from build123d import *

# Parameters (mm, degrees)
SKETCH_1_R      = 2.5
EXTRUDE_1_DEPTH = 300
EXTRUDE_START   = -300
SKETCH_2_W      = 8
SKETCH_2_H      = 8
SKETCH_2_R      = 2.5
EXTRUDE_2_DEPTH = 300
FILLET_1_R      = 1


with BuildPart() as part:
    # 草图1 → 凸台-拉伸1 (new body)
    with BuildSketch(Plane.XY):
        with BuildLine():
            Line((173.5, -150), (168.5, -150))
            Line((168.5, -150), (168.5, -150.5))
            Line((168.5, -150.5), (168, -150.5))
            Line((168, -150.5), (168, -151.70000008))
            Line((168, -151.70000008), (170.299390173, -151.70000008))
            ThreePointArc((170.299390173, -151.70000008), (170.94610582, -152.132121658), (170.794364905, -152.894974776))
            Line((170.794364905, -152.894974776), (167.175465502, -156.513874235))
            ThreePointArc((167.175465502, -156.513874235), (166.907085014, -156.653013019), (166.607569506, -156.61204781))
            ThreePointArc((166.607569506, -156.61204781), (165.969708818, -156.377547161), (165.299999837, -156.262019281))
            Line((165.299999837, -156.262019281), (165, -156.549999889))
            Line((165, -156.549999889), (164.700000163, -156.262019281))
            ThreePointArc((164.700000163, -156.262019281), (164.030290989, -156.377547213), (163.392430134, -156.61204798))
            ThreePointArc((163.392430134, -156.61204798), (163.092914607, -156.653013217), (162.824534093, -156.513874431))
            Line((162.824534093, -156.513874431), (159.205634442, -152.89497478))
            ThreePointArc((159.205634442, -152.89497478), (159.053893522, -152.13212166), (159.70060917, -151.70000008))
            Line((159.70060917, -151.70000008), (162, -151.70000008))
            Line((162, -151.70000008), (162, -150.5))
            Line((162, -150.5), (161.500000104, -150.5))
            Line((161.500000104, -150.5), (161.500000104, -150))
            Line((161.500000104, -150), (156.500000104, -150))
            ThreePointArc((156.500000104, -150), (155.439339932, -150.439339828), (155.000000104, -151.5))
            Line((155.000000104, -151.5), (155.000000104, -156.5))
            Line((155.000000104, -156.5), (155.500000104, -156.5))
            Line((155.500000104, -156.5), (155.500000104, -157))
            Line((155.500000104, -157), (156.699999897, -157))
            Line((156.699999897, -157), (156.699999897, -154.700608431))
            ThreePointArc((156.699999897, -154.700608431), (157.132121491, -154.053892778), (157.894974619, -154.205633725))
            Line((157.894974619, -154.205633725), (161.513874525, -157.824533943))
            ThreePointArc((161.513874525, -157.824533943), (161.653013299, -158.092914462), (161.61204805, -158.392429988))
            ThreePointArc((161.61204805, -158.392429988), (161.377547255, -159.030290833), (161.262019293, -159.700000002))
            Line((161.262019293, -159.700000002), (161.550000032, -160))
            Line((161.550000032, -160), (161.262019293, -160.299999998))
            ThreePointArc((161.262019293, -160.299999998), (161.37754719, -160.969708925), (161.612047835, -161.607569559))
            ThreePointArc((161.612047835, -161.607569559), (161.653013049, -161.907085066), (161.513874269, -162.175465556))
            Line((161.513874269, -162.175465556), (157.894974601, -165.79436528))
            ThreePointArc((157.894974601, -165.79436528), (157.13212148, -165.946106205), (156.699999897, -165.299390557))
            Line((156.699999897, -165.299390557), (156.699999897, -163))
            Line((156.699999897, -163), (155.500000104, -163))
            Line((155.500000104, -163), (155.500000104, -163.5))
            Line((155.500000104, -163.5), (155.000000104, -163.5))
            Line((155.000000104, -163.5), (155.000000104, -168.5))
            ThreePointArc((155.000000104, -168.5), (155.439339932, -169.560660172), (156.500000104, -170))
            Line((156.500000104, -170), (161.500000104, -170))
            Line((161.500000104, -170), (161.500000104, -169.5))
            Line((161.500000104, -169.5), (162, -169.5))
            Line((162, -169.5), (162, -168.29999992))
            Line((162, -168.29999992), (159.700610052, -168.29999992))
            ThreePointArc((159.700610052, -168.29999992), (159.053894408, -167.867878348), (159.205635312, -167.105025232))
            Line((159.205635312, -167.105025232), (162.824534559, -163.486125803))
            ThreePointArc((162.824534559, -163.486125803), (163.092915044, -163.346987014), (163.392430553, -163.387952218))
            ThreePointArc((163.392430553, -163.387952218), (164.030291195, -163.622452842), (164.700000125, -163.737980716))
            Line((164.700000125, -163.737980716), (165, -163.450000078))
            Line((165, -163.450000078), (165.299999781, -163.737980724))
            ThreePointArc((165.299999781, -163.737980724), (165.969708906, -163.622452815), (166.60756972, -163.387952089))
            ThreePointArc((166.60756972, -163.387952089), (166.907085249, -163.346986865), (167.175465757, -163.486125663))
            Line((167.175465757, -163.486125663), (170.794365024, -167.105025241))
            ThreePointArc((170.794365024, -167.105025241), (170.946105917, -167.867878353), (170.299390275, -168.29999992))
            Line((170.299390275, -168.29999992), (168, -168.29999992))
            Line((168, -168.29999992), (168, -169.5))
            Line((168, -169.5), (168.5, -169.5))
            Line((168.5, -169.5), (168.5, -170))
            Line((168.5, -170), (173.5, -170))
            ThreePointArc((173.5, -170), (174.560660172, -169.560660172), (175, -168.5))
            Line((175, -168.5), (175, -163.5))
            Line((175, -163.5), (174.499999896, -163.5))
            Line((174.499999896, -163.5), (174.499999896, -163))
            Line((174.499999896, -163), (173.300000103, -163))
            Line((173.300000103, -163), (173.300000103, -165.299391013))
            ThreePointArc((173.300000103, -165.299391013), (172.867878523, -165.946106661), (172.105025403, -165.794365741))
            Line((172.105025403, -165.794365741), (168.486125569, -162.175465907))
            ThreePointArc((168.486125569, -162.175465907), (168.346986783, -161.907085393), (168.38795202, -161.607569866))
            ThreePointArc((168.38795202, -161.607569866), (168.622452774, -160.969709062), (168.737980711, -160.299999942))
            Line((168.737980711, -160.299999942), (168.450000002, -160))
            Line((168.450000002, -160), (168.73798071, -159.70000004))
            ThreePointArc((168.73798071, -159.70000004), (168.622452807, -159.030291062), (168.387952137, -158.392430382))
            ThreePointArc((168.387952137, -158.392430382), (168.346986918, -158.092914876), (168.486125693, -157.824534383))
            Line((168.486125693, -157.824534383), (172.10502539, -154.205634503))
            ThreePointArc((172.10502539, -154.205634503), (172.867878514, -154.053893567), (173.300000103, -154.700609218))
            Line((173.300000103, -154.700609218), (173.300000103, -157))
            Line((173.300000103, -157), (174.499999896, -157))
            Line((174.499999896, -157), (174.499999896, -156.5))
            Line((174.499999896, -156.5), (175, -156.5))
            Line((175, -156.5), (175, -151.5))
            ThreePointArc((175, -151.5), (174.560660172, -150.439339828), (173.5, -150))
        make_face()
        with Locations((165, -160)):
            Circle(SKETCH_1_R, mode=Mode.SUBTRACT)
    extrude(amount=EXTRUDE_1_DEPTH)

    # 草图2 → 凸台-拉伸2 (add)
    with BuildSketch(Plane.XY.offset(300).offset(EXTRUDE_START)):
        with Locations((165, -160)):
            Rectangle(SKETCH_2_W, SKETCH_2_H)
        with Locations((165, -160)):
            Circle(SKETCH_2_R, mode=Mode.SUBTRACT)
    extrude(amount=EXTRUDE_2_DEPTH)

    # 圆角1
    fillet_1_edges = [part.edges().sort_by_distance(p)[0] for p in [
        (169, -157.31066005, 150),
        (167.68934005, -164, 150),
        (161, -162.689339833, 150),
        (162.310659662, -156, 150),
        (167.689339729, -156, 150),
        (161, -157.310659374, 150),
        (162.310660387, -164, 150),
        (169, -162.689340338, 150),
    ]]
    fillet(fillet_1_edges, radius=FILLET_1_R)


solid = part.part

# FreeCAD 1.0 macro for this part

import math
import FreeCAD as App
import Part
import Sketcher
from FreeCAD import Vector


def edges_at(feature, points):
    """Names of the edges that pass closest to the given points."""
    edges = feature.Shape.Edges
    near = lambda p: min(range(len(edges)), key=lambda i: edges[i].distToShape(Part.Vertex(*p))[0])
    return sorted({f"Edge{near(p) + 1}" for p in points})

doc = App.newDocument("Part")
body = doc.addObject("PartDesign::Body", "Body")

# Sketch on XY plane
sketch1 = doc.addObject("Sketcher::SketchObject", "Sketch")
body.addObject(sketch1)
sketch1.AttachmentSupport = (doc.XY_Plane, [""])
sketch1.MapMode = "FlatFace"
sketch1.addGeometry([
    Part.LineSegment(Vector(173.5, -150, 0), Vector(168.5, -150, 0)),  # 0
    Part.LineSegment(Vector(168.5, -150, 0), Vector(168.5, -150.5, 0)),  # 1
    Part.LineSegment(Vector(168.5, -150.5, 0), Vector(168, -150.5, 0)),  # 2
    Part.LineSegment(Vector(168, -150.5, 0), Vector(168, -151.7, 0)),  # 3
    Part.LineSegment(Vector(168, -151.7, 0), Vector(170.29939, -151.7, 0)),  # 4
    Part.ArcOfCircle(Part.Circle(Vector(170.29939, -152.4, 0), Vector(0, 0, 1), 0.7), math.radians(-45), math.radians(90)),  # 5
    Part.LineSegment(Vector(170.794365, -152.894975, 0), Vector(167.175466, -156.513874, 0)),  # 6
    Part.ArcOfCircle(Part.Circle(Vector(166.821912, -156.160321, 0), Vector(0, 0, 1), 0.5), math.radians(-115.384149), math.radians(-45)),  # 7
    Part.ArcOfCircle(Part.Circle(Vector(165, -160, 0), Vector(0, 0, 1), 3.75), math.radians(64.615851), math.radians(85.411437)),  # 8
    Part.LineSegment(Vector(165.3, -156.262019, 0), Vector(165, -156.55, 0)),  # 9
    Part.LineSegment(Vector(165, -156.55, 0), Vector(164.7, -156.262019, 0)),  # 10
    Part.ArcOfCircle(Part.Circle(Vector(165, -160, 0), Vector(0, 0, 1), 3.75), math.radians(94.588563), math.radians(115.384155)),  # 11
    Part.ArcOfCircle(Part.Circle(Vector(163.178087, -156.160321, 0), Vector(0, 0, 1), 0.5), math.radians(-135), math.radians(-64.615845)),  # 12
    Part.LineSegment(Vector(162.824534, -156.513874, 0), Vector(159.205634, -152.894975, 0)),  # 13
    Part.ArcOfCircle(Part.Circle(Vector(159.700609, -152.4, 0), Vector(0, 0, 1), 0.7), math.radians(90), math.radians(225)),  # 14
    Part.LineSegment(Vector(159.700609, -151.7, 0), Vector(162, -151.7, 0)),  # 15
    Part.LineSegment(Vector(162, -151.7, 0), Vector(162, -150.5, 0)),  # 16
    Part.LineSegment(Vector(162, -150.5, 0), Vector(161.5, -150.5, 0)),  # 17
    Part.LineSegment(Vector(161.5, -150.5, 0), Vector(161.5, -150, 0)),  # 18
    Part.LineSegment(Vector(161.5, -150, 0), Vector(156.5, -150, 0)),  # 19
    Part.ArcOfCircle(Part.Circle(Vector(156.5, -151.5, 0), Vector(0, 0, 1), 1.5), math.radians(90), math.radians(180)),  # 20
    Part.LineSegment(Vector(155, -151.5, 0), Vector(155, -156.5, 0)),  # 21
    Part.LineSegment(Vector(155, -156.5, 0), Vector(155.5, -156.5, 0)),  # 22
    Part.LineSegment(Vector(155.5, -156.5, 0), Vector(155.5, -157, 0)),  # 23
    Part.LineSegment(Vector(155.5, -157, 0), Vector(156.7, -157, 0)),  # 24
    Part.LineSegment(Vector(156.7, -157, 0), Vector(156.7, -154.700608, 0)),  # 25
    Part.ArcOfCircle(Part.Circle(Vector(157.4, -154.700608, 0), Vector(0, 0, 1), 0.7), math.radians(44.999998), math.radians(180)),  # 26
    Part.LineSegment(Vector(157.894975, -154.205634, 0), Vector(161.513875, -157.824534, 0)),  # 27
    Part.ArcOfCircle(Part.Circle(Vector(161.160321, -158.178087, 0), Vector(0, 0, 1), 0.5), math.radians(-25.384157), math.radians(44.999997)),  # 28
    Part.ArcOfCircle(Part.Circle(Vector(165, -160, 0), Vector(0, 0, 1), 3.75), math.radians(154.615843), math.radians(175.411434)),  # 29
    Part.LineSegment(Vector(161.262019, -159.7, 0), Vector(161.55, -160, 0)),  # 30
    Part.LineSegment(Vector(161.55, -160, 0), Vector(161.262019, -160.3, 0)),  # 31
    Part.ArcOfCircle(Part.Circle(Vector(165, -160, 0), Vector(0, 0, 1), 3.75), math.radians(-175.411434), math.radians(-154.61585)),  # 32
    Part.ArcOfCircle(Part.Circle(Vector(161.160321, -161.821912, 0), Vector(0, 0, 1), 0.5), math.radians(-45), math.radians(25.38415)),  # 33
    Part.LineSegment(Vector(161.513874, -162.175466, 0), Vector(157.894975, -165.794365, 0)),  # 34
    Part.ArcOfCircle(Part.Circle(Vector(157.4, -165.299391, 0), Vector(0, 0, 1), 0.7), math.radians(-180), math.radians(-45)),  # 35
    Part.LineSegment(Vector(156.7, -165.299391, 0), Vector(156.7, -163, 0)),  # 36
    Part.LineSegment(Vector(156.7, -163, 0), Vector(155.5, -163, 0)),  # 37
    Part.LineSegment(Vector(155.5, -163, 0), Vector(155.5, -163.5, 0)),  # 38
    Part.LineSegment(Vector(155.5, -163.5, 0), Vector(155, -163.5, 0)),  # 39
    Part.LineSegment(Vector(155, -163.5, 0), Vector(155, -168.5, 0)),  # 40
    Part.ArcOfCircle(Part.Circle(Vector(156.5, -168.5, 0), Vector(0, 0, 1), 1.5), math.radians(180), math.radians(270)),  # 41
    Part.LineSegment(Vector(156.5, -170, 0), Vector(161.5, -170, 0)),  # 42
    Part.LineSegment(Vector(161.5, -170, 0), Vector(161.5, -169.5, 0)),  # 43
    Part.LineSegment(Vector(161.5, -169.5, 0), Vector(162, -169.5, 0)),  # 44
    Part.LineSegment(Vector(162, -169.5, 0), Vector(162, -168.3, 0)),  # 45
    Part.LineSegment(Vector(162, -168.3, 0), Vector(159.70061, -168.3, 0)),  # 46
    Part.ArcOfCircle(Part.Circle(Vector(159.70061, -167.6, 0), Vector(0, 0, 1), 0.7), math.radians(135.000001), math.radians(270)),  # 47
    Part.LineSegment(Vector(159.205635, -167.105025, 0), Vector(162.824535, -163.486126, 0)),  # 48
    Part.ArcOfCircle(Part.Circle(Vector(163.178088, -163.839679, 0), Vector(0, 0, 1), 0.5), math.radians(64.615852), math.radians(135.000002)),  # 49
    Part.ArcOfCircle(Part.Circle(Vector(165, -160, 0), Vector(0, 0, 1), 3.75), math.radians(-115.384148), math.radians(-94.588564)),  # 50
    Part.LineSegment(Vector(164.7, -163.737981, 0), Vector(165, -163.45, 0)),  # 51
    Part.LineSegment(Vector(165, -163.45, 0), Vector(165.3, -163.737981, 0)),  # 52
    Part.ArcOfCircle(Part.Circle(Vector(165, -160, 0), Vector(0, 0, 1), 3.75), math.radians(-85.411438), math.radians(-64.615848)),  # 53
    Part.ArcOfCircle(Part.Circle(Vector(166.821912, -163.839679, 0), Vector(0, 0, 1), 0.5), math.radians(44.999997), math.radians(115.384152)),  # 54
    Part.LineSegment(Vector(167.175466, -163.486126, 0), Vector(170.794365, -167.105025, 0)),  # 55
    Part.ArcOfCircle(Part.Circle(Vector(170.29939, -167.6, 0), Vector(0, 0, 1), 0.7), math.radians(-90), math.radians(44.999998)),  # 56
    Part.LineSegment(Vector(170.29939, -168.3, 0), Vector(168, -168.3, 0)),  # 57
    Part.LineSegment(Vector(168, -168.3, 0), Vector(168, -169.5, 0)),  # 58
    Part.LineSegment(Vector(168, -169.5, 0), Vector(168.5, -169.5, 0)),  # 59
    Part.LineSegment(Vector(168.5, -169.5, 0), Vector(168.5, -170, 0)),  # 60
    Part.LineSegment(Vector(168.5, -170, 0), Vector(173.5, -170, 0)),  # 61
    Part.ArcOfCircle(Part.Circle(Vector(173.5, -168.5, 0), Vector(0, 0, 1), 1.5), math.radians(-90), math.radians(0)),  # 62
    Part.LineSegment(Vector(175, -168.5, 0), Vector(175, -163.5, 0)),  # 63
    Part.LineSegment(Vector(175, -163.5, 0), Vector(174.5, -163.5, 0)),  # 64
    Part.LineSegment(Vector(174.5, -163.5, 0), Vector(174.5, -163, 0)),  # 65
    Part.LineSegment(Vector(174.5, -163, 0), Vector(173.3, -163, 0)),  # 66
    Part.LineSegment(Vector(173.3, -163, 0), Vector(173.3, -165.299391, 0)),  # 67
    Part.ArcOfCircle(Part.Circle(Vector(172.6, -165.299391, 0), Vector(0, 0, 1), 0.7), math.radians(-135), math.radians(0)),  # 68
    Part.LineSegment(Vector(172.105025, -165.794366, 0), Vector(168.486126, -162.175466, 0)),  # 69
    Part.ArcOfCircle(Part.Circle(Vector(168.839679, -161.821913, 0), Vector(0, 0, 1), 0.5), math.radians(154.615845), math.radians(225)),  # 70
    Part.ArcOfCircle(Part.Circle(Vector(165, -160, 0), Vector(0, 0, 1), 3.75), math.radians(-25.384155), math.radians(-4.588565)),  # 71
    Part.LineSegment(Vector(168.737981, -160.3, 0), Vector(168.45, -160, 0)),  # 72
    Part.LineSegment(Vector(168.45, -160, 0), Vector(168.737981, -159.7, 0)),  # 73
    Part.ArcOfCircle(Part.Circle(Vector(165, -160, 0), Vector(0, 0, 1), 3.75), math.radians(4.588565), math.radians(25.384151)),  # 74
    Part.ArcOfCircle(Part.Circle(Vector(168.839679, -158.178088, 0), Vector(0, 0, 1), 0.5), math.radians(135.000001), math.radians(205.384151)),  # 75
    Part.LineSegment(Vector(168.486126, -157.824534, 0), Vector(172.105025, -154.205635, 0)),  # 76
    Part.ArcOfCircle(Part.Circle(Vector(172.6, -154.700609, 0), Vector(0, 0, 1), 0.7), math.radians(0), math.radians(135.000001)),  # 77
    Part.LineSegment(Vector(173.3, -154.700609, 0), Vector(173.3, -157, 0)),  # 78
    Part.LineSegment(Vector(173.3, -157, 0), Vector(174.5, -157, 0)),  # 79
    Part.LineSegment(Vector(174.5, -157, 0), Vector(174.5, -156.5, 0)),  # 80
    Part.LineSegment(Vector(174.5, -156.5, 0), Vector(175, -156.5, 0)),  # 81
    Part.LineSegment(Vector(175, -156.5, 0), Vector(175, -151.5, 0)),  # 82
    Part.ArcOfCircle(Part.Circle(Vector(173.5, -151.5, 0), Vector(0, 0, 1), 1.5), math.radians(0), math.radians(90)),  # 83
    Part.Circle(Vector(165, -160, 0), Vector(0, 0, 1), 2.5),  # 84
], False)
sketch1.addConstraint([
    Sketcher.Constraint("Coincident", 0, 2, 1, 1),
    Sketcher.Constraint("Coincident", 1, 2, 2, 1),
    Sketcher.Constraint("Coincident", 2, 2, 3, 1),
    Sketcher.Constraint("Coincident", 3, 2, 4, 1),
    Sketcher.Constraint("Tangent", 4, 2, 5, 2),
    Sketcher.Constraint("Tangent", 5, 1, 6, 1),
    Sketcher.Constraint("Tangent", 6, 2, 7, 2),
    Sketcher.Constraint("Tangent", 7, 1, 8, 1),
    Sketcher.Constraint("Coincident", 8, 2, 9, 1),
    Sketcher.Constraint("Coincident", 9, 2, 10, 1),
    Sketcher.Constraint("Coincident", 10, 2, 11, 1),
    Sketcher.Constraint("Tangent", 11, 2, 12, 2),
    Sketcher.Constraint("Tangent", 12, 1, 13, 1),
    Sketcher.Constraint("Tangent", 13, 2, 14, 2),
    Sketcher.Constraint("Tangent", 14, 1, 15, 1),
    Sketcher.Constraint("Coincident", 15, 2, 16, 1),
    Sketcher.Constraint("Coincident", 16, 2, 17, 1),
    Sketcher.Constraint("Coincident", 17, 2, 18, 1),
    Sketcher.Constraint("Coincident", 18, 2, 19, 1),
    Sketcher.Constraint("Tangent", 19, 2, 20, 1),
    Sketcher.Constraint("Tangent", 20, 2, 21, 1),
    Sketcher.Constraint("Coincident", 21, 2, 22, 1),
    Sketcher.Constraint("Coincident", 22, 2, 23, 1),
    Sketcher.Constraint("Coincident", 23, 2, 24, 1),
    Sketcher.Constraint("Coincident", 24, 2, 25, 1),
    Sketcher.Constraint("Tangent", 25, 2, 26, 2),
    Sketcher.Constraint("Tangent", 26, 1, 27, 1),
    Sketcher.Constraint("Tangent", 27, 2, 28, 2),
    Sketcher.Constraint("Tangent", 28, 1, 29, 1),
    Sketcher.Constraint("Coincident", 29, 2, 30, 1),
    Sketcher.Constraint("Coincident", 30, 2, 31, 1),
    Sketcher.Constraint("Coincident", 31, 2, 32, 1),
    Sketcher.Constraint("Tangent", 32, 2, 33, 2),
    Sketcher.Constraint("Tangent", 33, 1, 34, 1),
    Sketcher.Constraint("Tangent", 34, 2, 35, 2),
    Sketcher.Constraint("Tangent", 35, 1, 36, 1),
    Sketcher.Constraint("Coincident", 36, 2, 37, 1),
    Sketcher.Constraint("Coincident", 37, 2, 38, 1),
    Sketcher.Constraint("Coincident", 38, 2, 39, 1),
    Sketcher.Constraint("Coincident", 39, 2, 40, 1),
    Sketcher.Constraint("Tangent", 40, 2, 41, 1),
    Sketcher.Constraint("Tangent", 41, 2, 42, 1),
    Sketcher.Constraint("Coincident", 42, 2, 43, 1),
    Sketcher.Constraint("Coincident", 43, 2, 44, 1),
    Sketcher.Constraint("Coincident", 44, 2, 45, 1),
    Sketcher.Constraint("Coincident", 45, 2, 46, 1),
    Sketcher.Constraint("Tangent", 46, 2, 47, 2),
    Sketcher.Constraint("Tangent", 47, 1, 48, 1),
    Sketcher.Constraint("Tangent", 48, 2, 49, 2),
    Sketcher.Constraint("Tangent", 49, 1, 50, 1),
    Sketcher.Constraint("Coincident", 50, 2, 51, 1),
    Sketcher.Constraint("Coincident", 51, 2, 52, 1),
    Sketcher.Constraint("Coincident", 52, 2, 53, 1),
    Sketcher.Constraint("Tangent", 53, 2, 54, 2),
    Sketcher.Constraint("Tangent", 54, 1, 55, 1),
    Sketcher.Constraint("Tangent", 55, 2, 56, 2),
    Sketcher.Constraint("Tangent", 56, 1, 57, 1),
    Sketcher.Constraint("Coincident", 57, 2, 58, 1),
    Sketcher.Constraint("Coincident", 58, 2, 59, 1),
    Sketcher.Constraint("Coincident", 59, 2, 60, 1),
    Sketcher.Constraint("Coincident", 60, 2, 61, 1),
    Sketcher.Constraint("Tangent", 61, 2, 62, 1),
    Sketcher.Constraint("Tangent", 62, 2, 63, 1),
    Sketcher.Constraint("Coincident", 63, 2, 64, 1),
    Sketcher.Constraint("Coincident", 64, 2, 65, 1),
    Sketcher.Constraint("Coincident", 65, 2, 66, 1),
    Sketcher.Constraint("Coincident", 66, 2, 67, 1),
    Sketcher.Constraint("Tangent", 67, 2, 68, 2),
    Sketcher.Constraint("Tangent", 68, 1, 69, 1),
    Sketcher.Constraint("Tangent", 69, 2, 70, 2),
    Sketcher.Constraint("Tangent", 70, 1, 71, 1),
    Sketcher.Constraint("Coincident", 71, 2, 72, 1),
    Sketcher.Constraint("Coincident", 72, 2, 73, 1),
    Sketcher.Constraint("Coincident", 73, 2, 74, 1),
    Sketcher.Constraint("Tangent", 74, 2, 75, 2),
    Sketcher.Constraint("Tangent", 75, 1, 76, 1),
    Sketcher.Constraint("Tangent", 76, 2, 77, 2),
    Sketcher.Constraint("Tangent", 77, 1, 78, 1),
    Sketcher.Constraint("Coincident", 78, 2, 79, 1),
    Sketcher.Constraint("Coincident", 79, 2, 80, 1),
    Sketcher.Constraint("Coincident", 80, 2, 81, 1),
    Sketcher.Constraint("Coincident", 81, 2, 82, 1),
    Sketcher.Constraint("Tangent", 82, 2, 83, 1),
    Sketcher.Constraint("Tangent", 83, 2, 0, 1),
    Sketcher.Constraint("Horizontal", 0),
    Sketcher.Constraint("Vertical", 1),
    Sketcher.Constraint("Horizontal", 2),
    Sketcher.Constraint("Vertical", 3),
    Sketcher.Constraint("Horizontal", 4),
    Sketcher.Constraint("Horizontal", 15),
    Sketcher.Constraint("Vertical", 16),
    Sketcher.Constraint("Horizontal", 17),
    Sketcher.Constraint("Vertical", 18),
    Sketcher.Constraint("Horizontal", 19),
    Sketcher.Constraint("Vertical", 21),
    Sketcher.Constraint("Horizontal", 22),
    Sketcher.Constraint("Vertical", 23),
    Sketcher.Constraint("Horizontal", 24),
    Sketcher.Constraint("Vertical", 25),
    Sketcher.Constraint("Vertical", 36),
    Sketcher.Constraint("Horizontal", 37),
    Sketcher.Constraint("Vertical", 38),
    Sketcher.Constraint("Horizontal", 39),
    Sketcher.Constraint("Vertical", 40),
    Sketcher.Constraint("Horizontal", 42),
    Sketcher.Constraint("Vertical", 43),
    Sketcher.Constraint("Horizontal", 44),
    Sketcher.Constraint("Vertical", 45),
    Sketcher.Constraint("Horizontal", 46),
    Sketcher.Constraint("Horizontal", 57),
    Sketcher.Constraint("Vertical", 58),
    Sketcher.Constraint("Horizontal", 59),
    Sketcher.Constraint("Vertical", 60),
    Sketcher.Constraint("Horizontal", 61),
    Sketcher.Constraint("Vertical", 63),
    Sketcher.Constraint("Horizontal", 64),
    Sketcher.Constraint("Vertical", 65),
    Sketcher.Constraint("Horizontal", 66),
    Sketcher.Constraint("Vertical", 67),
    Sketcher.Constraint("Vertical", 78),
    Sketcher.Constraint("Horizontal", 79),
    Sketcher.Constraint("Vertical", 80),
    Sketcher.Constraint("Horizontal", 81),
    Sketcher.Constraint("Vertical", 82),
    Sketcher.Constraint("Coincident", 11, 3, 8, 3),
    Sketcher.Constraint("Coincident", 29, 3, 8, 3),
    Sketcher.Constraint("Coincident", 32, 3, 8, 3),
    Sketcher.Constraint("Coincident", 50, 3, 8, 3),
    Sketcher.Constraint("Coincident", 53, 3, 8, 3),
    Sketcher.Constraint("Coincident", 71, 3, 8, 3),
    Sketcher.Constraint("Coincident", 74, 3, 8, 3),
    Sketcher.Constraint("Coincident", 84, 3, 8, 3),
    Sketcher.Constraint("Equal", 8, 11),
    Sketcher.Constraint("Equal", 7, 12),
    Sketcher.Constraint("Equal", 5, 14),
    Sketcher.Constraint("Equal", 14, 26),
    Sketcher.Constraint("Equal", 12, 28),
    Sketcher.Constraint("Equal", 11, 29),
    Sketcher.Constraint("Equal", 29, 32),
    Sketcher.Constraint("Equal", 28, 33),
    Sketcher.Constraint("Equal", 26, 35),
    Sketcher.Constraint("Equal", 20, 41),
    Sketcher.Constraint("Equal", 35, 47),
    Sketcher.Constraint("Equal", 33, 49),
    Sketcher.Constraint("Equal", 32, 50),
    Sketcher.Constraint("Equal", 50, 53),
    Sketcher.Constraint("Equal", 49, 54),
    Sketcher.Constraint("Equal", 47, 56),
    Sketcher.Constraint("Equal", 41, 62),
    Sketcher.Constraint("Equal", 56, 68),
    Sketcher.Constraint("Equal", 54, 70),
    Sketcher.Constraint("Equal", 53, 71),
    Sketcher.Constraint("Equal", 71, 74),
    Sketcher.Constraint("Equal", 70, 75),
    Sketcher.Constraint("Equal", 68, 77),
    Sketcher.Constraint("Equal", 62, 83),
    Sketcher.Constraint("Perpendicular", 6, 13),
    Sketcher.Constraint("Parallel", 13, 27),
    Sketcher.Constraint("Perpendicular", 9, 30),
    Sketcher.Constraint("Perpendicular", 10, 31),
    Sketcher.Constraint("Perpendicular", 27, 34),
    Sketcher.Constraint("Parallel", 34, 48),
    Sketcher.Constraint("Perpendicular", 30, 51),
    Sketcher.Constraint("Perpendicular", 31, 52),
    Sketcher.Constraint("Perpendicular", 48, 55),
    Sketcher.Constraint("Parallel", 55, 69),
    Sketcher.Constraint("Perpendicular", 51, 72),
    Sketcher.Constraint("Perpendicular", 52, 73),
    Sketcher.Constraint("Perpendicular", 69, 76),
    Sketcher.Constraint("Horizontal", 7, 3, 12, 3),
    Sketcher.Constraint("Horizontal", 5, 3, 14, 3),
    Sketcher.Constraint("Horizontal", 49, 3, 54, 3),
    Sketcher.Constraint("Horizontal", 47, 3, 56, 3),
    Sketcher.Constraint("Horizontal", 41, 3, 62, 3),
    Sketcher.Constraint("Horizontal", 35, 3, 68, 3),
    Sketcher.Constraint("Horizontal", 33, 3, 70, 3),
    Sketcher.Constraint("Horizontal", 28, 3, 75, 3),
    Sketcher.Constraint("Horizontal", 26, 3, 77, 3),
    Sketcher.Constraint("Horizontal", 20, 3, 83, 3),
    Sketcher.Constraint("Horizontal", 8, 2, 10, 2),
    Sketcher.Constraint("Horizontal", 6, 2, 12, 1),
    Sketcher.Constraint("Horizontal", 2, 2, 16, 2),
    Sketcher.Constraint("Horizontal", 84, 3, 30, 2),
    Sketcher.Constraint("Horizontal", 50, 2, 52, 2),
    Sketcher.Constraint("Horizontal", 44, 2, 58, 2),
    Sketcher.Constraint("Horizontal", 39, 2, 63, 2),
    Sketcher.Constraint("Horizontal", 37, 2, 65, 2),
    Sketcher.Constraint("Horizontal", 31, 2, 71, 2),
    Sketcher.Constraint("Horizontal", 30, 2, 72, 2),
    Sketcher.Constraint("Horizontal", 29, 2, 73, 2),
    Sketcher.Constraint("Horizontal", 24, 2, 78, 2),
    Sketcher.Constraint("Horizontal", 22, 2, 80, 2),
    Sketcher.Constraint("Vertical", 28, 3, 33, 3),
    Sketcher.Constraint("Vertical", 26, 3, 35, 3),
    Sketcher.Constraint("Vertical", 20, 3, 41, 3),
    Sketcher.Constraint("Vertical", 14, 3, 47, 3),
    Sketcher.Constraint("Vertical", 12, 3, 49, 3),
    Sketcher.Constraint("Vertical", 62, 3, 83, 3),
    Sketcher.Constraint("Vertical", 23, 2, 37, 2),
    Sketcher.Constraint("Vertical", 18, 2, 42, 2),
    Sketcher.Constraint("Vertical", 16, 2, 44, 2),
    Sketcher.Constraint("Vertical", 10, 2, 50, 2),
    Sketcher.Constraint("Vertical", 3, 2, 57, 2),
    Sketcher.Constraint("Vertical", 1, 2, 59, 2),
    Sketcher.Constraint("Vertical", 65, 2, 79, 2),
    Sketcher.Constraint("Equal", 4, 15),
    Sketcher.Constraint("Equal", 2, 17),
    Sketcher.Constraint("Equal", 0, 19),
    Sketcher.Constraint("Equal", 17, 22),
    Sketcher.Constraint("Equal", 59, 64),
    Sketcher.Constraint("Equal", 81, 1),
    Sketcher.Constraint("Equal", 79, 3),
    Sketcher.Constraint("Equal", 61, 21),
    Sketcher.Constraint("Equal", 18, 23),
    Sketcher.Constraint("Equal", 57, 25),
    Sketcher.Constraint("Equal", 25, 36),
    Sketcher.Constraint("Equal", 23, 38),
    Sketcher.Constraint("Equal", 21, 40),
    Sketcher.Constraint("Equal", 38, 43),
    Sketcher.Constraint("Equal", 13, 27),
    Sketcher.Constraint("Equal", 10, 30),
    Sketcher.Constraint("Diameter", 84, 5.0),
    Sketcher.Constraint("Radius", 5, 0.7),
    Sketcher.Constraint("Radius", 7, 0.5),
    Sketcher.Constraint("Radius", 20, 1.5),
    Sketcher.Constraint("DistanceX", 0, 2, 0, 1, 5.0),
    Sketcher.Constraint("Radius", 8, 3.75),
    Sketcher.Constraint("DistanceX", 2, 2, 2, 1, 0.5),
    Sketcher.Constraint("DistanceX", 24, 1, 24, 2, 1.2),
    Sketcher.Constraint("DistanceX", -1, 1, 8, 3, 165.0),
    Sketcher.Constraint("DistanceY", 8, 3, -1, 1, 160.0),
    Sketcher.Constraint("DistanceY", 0, 2, -1, 1, 150.0),
    Sketcher.Constraint("DistanceX", -1, 1, 8, 2, 165.3),
    Sketcher.Constraint("DistanceY", 9, 2, -1, 1, 156.55),
    Sketcher.Constraint("DistanceX", 4, 1, 4, 2, 2.29939),
])
pad1 = doc.addObject("PartDesign::Pad", "Pad")
body.addObject(pad1)
pad1.Profile = sketch1
pad1.Length = 300

# Sketch on XY plane
sketch2 = doc.addObject("Sketcher::SketchObject", "Sketch001")
body.addObject(sketch2)
sketch2.AttachmentSupport = (doc.XY_Plane, [""])
sketch2.MapMode = "FlatFace"
sketch2.addGeometry([
    Part.LineSegment(Vector(161, -156, 0), Vector(161, -164, 0)),  # 0
    Part.LineSegment(Vector(161, -164, 0), Vector(169, -164, 0)),  # 1
    Part.LineSegment(Vector(169, -164, 0), Vector(169, -156, 0)),  # 2
    Part.LineSegment(Vector(169, -156, 0), Vector(161, -156, 0)),  # 3
    Part.Circle(Vector(165, -160, 0), Vector(0, 0, 1), 2.5),  # 4
], False)
sketch2.addConstraint([
    Sketcher.Constraint("Coincident", 0, 2, 1, 1),
    Sketcher.Constraint("Coincident", 1, 2, 2, 1),
    Sketcher.Constraint("Coincident", 2, 2, 3, 1),
    Sketcher.Constraint("Coincident", 3, 2, 0, 1),
    Sketcher.Constraint("Vertical", 0),
    Sketcher.Constraint("Horizontal", 1),
    Sketcher.Constraint("Vertical", 2),
    Sketcher.Constraint("Horizontal", 3),
    Sketcher.Constraint("Equal", 3, 0),
    Sketcher.Constraint("Diameter", 4, 5.0),
    Sketcher.Constraint("DistanceX", 1, 1, 1, 2, 8.0),
    Sketcher.Constraint("DistanceX", -1, 1, 4, 3, 165.0),
    Sketcher.Constraint("DistanceY", 4, 3, -1, 1, 160.0),
    Sketcher.Constraint("DistanceX", -1, 1, 0, 2, 161.0),
    Sketcher.Constraint("DistanceY", 0, 2, -1, 1, 164.0),
])
pad2 = doc.addObject("PartDesign::Pad", "Pad001")
body.addObject(pad2)
pad2.Profile = sketch2
pad2.Length = 300
doc.recompute()

fillet = doc.addObject("PartDesign::Fillet", "Fillet")
body.addObject(fillet)
fillet.Base = (pad2, edges_at(pad2, [
    (169, -157.311, 150),
    (167.689, -164, 150),
    (161, -162.689, 150),
    (162.311, -156, 150),
    (167.689, -156, 150),
    (161, -157.311, 150),
    (162.311, -164, 150),
    (169, -162.689, 150),
]))
fillet.Radius = 1

doc.recompute()
